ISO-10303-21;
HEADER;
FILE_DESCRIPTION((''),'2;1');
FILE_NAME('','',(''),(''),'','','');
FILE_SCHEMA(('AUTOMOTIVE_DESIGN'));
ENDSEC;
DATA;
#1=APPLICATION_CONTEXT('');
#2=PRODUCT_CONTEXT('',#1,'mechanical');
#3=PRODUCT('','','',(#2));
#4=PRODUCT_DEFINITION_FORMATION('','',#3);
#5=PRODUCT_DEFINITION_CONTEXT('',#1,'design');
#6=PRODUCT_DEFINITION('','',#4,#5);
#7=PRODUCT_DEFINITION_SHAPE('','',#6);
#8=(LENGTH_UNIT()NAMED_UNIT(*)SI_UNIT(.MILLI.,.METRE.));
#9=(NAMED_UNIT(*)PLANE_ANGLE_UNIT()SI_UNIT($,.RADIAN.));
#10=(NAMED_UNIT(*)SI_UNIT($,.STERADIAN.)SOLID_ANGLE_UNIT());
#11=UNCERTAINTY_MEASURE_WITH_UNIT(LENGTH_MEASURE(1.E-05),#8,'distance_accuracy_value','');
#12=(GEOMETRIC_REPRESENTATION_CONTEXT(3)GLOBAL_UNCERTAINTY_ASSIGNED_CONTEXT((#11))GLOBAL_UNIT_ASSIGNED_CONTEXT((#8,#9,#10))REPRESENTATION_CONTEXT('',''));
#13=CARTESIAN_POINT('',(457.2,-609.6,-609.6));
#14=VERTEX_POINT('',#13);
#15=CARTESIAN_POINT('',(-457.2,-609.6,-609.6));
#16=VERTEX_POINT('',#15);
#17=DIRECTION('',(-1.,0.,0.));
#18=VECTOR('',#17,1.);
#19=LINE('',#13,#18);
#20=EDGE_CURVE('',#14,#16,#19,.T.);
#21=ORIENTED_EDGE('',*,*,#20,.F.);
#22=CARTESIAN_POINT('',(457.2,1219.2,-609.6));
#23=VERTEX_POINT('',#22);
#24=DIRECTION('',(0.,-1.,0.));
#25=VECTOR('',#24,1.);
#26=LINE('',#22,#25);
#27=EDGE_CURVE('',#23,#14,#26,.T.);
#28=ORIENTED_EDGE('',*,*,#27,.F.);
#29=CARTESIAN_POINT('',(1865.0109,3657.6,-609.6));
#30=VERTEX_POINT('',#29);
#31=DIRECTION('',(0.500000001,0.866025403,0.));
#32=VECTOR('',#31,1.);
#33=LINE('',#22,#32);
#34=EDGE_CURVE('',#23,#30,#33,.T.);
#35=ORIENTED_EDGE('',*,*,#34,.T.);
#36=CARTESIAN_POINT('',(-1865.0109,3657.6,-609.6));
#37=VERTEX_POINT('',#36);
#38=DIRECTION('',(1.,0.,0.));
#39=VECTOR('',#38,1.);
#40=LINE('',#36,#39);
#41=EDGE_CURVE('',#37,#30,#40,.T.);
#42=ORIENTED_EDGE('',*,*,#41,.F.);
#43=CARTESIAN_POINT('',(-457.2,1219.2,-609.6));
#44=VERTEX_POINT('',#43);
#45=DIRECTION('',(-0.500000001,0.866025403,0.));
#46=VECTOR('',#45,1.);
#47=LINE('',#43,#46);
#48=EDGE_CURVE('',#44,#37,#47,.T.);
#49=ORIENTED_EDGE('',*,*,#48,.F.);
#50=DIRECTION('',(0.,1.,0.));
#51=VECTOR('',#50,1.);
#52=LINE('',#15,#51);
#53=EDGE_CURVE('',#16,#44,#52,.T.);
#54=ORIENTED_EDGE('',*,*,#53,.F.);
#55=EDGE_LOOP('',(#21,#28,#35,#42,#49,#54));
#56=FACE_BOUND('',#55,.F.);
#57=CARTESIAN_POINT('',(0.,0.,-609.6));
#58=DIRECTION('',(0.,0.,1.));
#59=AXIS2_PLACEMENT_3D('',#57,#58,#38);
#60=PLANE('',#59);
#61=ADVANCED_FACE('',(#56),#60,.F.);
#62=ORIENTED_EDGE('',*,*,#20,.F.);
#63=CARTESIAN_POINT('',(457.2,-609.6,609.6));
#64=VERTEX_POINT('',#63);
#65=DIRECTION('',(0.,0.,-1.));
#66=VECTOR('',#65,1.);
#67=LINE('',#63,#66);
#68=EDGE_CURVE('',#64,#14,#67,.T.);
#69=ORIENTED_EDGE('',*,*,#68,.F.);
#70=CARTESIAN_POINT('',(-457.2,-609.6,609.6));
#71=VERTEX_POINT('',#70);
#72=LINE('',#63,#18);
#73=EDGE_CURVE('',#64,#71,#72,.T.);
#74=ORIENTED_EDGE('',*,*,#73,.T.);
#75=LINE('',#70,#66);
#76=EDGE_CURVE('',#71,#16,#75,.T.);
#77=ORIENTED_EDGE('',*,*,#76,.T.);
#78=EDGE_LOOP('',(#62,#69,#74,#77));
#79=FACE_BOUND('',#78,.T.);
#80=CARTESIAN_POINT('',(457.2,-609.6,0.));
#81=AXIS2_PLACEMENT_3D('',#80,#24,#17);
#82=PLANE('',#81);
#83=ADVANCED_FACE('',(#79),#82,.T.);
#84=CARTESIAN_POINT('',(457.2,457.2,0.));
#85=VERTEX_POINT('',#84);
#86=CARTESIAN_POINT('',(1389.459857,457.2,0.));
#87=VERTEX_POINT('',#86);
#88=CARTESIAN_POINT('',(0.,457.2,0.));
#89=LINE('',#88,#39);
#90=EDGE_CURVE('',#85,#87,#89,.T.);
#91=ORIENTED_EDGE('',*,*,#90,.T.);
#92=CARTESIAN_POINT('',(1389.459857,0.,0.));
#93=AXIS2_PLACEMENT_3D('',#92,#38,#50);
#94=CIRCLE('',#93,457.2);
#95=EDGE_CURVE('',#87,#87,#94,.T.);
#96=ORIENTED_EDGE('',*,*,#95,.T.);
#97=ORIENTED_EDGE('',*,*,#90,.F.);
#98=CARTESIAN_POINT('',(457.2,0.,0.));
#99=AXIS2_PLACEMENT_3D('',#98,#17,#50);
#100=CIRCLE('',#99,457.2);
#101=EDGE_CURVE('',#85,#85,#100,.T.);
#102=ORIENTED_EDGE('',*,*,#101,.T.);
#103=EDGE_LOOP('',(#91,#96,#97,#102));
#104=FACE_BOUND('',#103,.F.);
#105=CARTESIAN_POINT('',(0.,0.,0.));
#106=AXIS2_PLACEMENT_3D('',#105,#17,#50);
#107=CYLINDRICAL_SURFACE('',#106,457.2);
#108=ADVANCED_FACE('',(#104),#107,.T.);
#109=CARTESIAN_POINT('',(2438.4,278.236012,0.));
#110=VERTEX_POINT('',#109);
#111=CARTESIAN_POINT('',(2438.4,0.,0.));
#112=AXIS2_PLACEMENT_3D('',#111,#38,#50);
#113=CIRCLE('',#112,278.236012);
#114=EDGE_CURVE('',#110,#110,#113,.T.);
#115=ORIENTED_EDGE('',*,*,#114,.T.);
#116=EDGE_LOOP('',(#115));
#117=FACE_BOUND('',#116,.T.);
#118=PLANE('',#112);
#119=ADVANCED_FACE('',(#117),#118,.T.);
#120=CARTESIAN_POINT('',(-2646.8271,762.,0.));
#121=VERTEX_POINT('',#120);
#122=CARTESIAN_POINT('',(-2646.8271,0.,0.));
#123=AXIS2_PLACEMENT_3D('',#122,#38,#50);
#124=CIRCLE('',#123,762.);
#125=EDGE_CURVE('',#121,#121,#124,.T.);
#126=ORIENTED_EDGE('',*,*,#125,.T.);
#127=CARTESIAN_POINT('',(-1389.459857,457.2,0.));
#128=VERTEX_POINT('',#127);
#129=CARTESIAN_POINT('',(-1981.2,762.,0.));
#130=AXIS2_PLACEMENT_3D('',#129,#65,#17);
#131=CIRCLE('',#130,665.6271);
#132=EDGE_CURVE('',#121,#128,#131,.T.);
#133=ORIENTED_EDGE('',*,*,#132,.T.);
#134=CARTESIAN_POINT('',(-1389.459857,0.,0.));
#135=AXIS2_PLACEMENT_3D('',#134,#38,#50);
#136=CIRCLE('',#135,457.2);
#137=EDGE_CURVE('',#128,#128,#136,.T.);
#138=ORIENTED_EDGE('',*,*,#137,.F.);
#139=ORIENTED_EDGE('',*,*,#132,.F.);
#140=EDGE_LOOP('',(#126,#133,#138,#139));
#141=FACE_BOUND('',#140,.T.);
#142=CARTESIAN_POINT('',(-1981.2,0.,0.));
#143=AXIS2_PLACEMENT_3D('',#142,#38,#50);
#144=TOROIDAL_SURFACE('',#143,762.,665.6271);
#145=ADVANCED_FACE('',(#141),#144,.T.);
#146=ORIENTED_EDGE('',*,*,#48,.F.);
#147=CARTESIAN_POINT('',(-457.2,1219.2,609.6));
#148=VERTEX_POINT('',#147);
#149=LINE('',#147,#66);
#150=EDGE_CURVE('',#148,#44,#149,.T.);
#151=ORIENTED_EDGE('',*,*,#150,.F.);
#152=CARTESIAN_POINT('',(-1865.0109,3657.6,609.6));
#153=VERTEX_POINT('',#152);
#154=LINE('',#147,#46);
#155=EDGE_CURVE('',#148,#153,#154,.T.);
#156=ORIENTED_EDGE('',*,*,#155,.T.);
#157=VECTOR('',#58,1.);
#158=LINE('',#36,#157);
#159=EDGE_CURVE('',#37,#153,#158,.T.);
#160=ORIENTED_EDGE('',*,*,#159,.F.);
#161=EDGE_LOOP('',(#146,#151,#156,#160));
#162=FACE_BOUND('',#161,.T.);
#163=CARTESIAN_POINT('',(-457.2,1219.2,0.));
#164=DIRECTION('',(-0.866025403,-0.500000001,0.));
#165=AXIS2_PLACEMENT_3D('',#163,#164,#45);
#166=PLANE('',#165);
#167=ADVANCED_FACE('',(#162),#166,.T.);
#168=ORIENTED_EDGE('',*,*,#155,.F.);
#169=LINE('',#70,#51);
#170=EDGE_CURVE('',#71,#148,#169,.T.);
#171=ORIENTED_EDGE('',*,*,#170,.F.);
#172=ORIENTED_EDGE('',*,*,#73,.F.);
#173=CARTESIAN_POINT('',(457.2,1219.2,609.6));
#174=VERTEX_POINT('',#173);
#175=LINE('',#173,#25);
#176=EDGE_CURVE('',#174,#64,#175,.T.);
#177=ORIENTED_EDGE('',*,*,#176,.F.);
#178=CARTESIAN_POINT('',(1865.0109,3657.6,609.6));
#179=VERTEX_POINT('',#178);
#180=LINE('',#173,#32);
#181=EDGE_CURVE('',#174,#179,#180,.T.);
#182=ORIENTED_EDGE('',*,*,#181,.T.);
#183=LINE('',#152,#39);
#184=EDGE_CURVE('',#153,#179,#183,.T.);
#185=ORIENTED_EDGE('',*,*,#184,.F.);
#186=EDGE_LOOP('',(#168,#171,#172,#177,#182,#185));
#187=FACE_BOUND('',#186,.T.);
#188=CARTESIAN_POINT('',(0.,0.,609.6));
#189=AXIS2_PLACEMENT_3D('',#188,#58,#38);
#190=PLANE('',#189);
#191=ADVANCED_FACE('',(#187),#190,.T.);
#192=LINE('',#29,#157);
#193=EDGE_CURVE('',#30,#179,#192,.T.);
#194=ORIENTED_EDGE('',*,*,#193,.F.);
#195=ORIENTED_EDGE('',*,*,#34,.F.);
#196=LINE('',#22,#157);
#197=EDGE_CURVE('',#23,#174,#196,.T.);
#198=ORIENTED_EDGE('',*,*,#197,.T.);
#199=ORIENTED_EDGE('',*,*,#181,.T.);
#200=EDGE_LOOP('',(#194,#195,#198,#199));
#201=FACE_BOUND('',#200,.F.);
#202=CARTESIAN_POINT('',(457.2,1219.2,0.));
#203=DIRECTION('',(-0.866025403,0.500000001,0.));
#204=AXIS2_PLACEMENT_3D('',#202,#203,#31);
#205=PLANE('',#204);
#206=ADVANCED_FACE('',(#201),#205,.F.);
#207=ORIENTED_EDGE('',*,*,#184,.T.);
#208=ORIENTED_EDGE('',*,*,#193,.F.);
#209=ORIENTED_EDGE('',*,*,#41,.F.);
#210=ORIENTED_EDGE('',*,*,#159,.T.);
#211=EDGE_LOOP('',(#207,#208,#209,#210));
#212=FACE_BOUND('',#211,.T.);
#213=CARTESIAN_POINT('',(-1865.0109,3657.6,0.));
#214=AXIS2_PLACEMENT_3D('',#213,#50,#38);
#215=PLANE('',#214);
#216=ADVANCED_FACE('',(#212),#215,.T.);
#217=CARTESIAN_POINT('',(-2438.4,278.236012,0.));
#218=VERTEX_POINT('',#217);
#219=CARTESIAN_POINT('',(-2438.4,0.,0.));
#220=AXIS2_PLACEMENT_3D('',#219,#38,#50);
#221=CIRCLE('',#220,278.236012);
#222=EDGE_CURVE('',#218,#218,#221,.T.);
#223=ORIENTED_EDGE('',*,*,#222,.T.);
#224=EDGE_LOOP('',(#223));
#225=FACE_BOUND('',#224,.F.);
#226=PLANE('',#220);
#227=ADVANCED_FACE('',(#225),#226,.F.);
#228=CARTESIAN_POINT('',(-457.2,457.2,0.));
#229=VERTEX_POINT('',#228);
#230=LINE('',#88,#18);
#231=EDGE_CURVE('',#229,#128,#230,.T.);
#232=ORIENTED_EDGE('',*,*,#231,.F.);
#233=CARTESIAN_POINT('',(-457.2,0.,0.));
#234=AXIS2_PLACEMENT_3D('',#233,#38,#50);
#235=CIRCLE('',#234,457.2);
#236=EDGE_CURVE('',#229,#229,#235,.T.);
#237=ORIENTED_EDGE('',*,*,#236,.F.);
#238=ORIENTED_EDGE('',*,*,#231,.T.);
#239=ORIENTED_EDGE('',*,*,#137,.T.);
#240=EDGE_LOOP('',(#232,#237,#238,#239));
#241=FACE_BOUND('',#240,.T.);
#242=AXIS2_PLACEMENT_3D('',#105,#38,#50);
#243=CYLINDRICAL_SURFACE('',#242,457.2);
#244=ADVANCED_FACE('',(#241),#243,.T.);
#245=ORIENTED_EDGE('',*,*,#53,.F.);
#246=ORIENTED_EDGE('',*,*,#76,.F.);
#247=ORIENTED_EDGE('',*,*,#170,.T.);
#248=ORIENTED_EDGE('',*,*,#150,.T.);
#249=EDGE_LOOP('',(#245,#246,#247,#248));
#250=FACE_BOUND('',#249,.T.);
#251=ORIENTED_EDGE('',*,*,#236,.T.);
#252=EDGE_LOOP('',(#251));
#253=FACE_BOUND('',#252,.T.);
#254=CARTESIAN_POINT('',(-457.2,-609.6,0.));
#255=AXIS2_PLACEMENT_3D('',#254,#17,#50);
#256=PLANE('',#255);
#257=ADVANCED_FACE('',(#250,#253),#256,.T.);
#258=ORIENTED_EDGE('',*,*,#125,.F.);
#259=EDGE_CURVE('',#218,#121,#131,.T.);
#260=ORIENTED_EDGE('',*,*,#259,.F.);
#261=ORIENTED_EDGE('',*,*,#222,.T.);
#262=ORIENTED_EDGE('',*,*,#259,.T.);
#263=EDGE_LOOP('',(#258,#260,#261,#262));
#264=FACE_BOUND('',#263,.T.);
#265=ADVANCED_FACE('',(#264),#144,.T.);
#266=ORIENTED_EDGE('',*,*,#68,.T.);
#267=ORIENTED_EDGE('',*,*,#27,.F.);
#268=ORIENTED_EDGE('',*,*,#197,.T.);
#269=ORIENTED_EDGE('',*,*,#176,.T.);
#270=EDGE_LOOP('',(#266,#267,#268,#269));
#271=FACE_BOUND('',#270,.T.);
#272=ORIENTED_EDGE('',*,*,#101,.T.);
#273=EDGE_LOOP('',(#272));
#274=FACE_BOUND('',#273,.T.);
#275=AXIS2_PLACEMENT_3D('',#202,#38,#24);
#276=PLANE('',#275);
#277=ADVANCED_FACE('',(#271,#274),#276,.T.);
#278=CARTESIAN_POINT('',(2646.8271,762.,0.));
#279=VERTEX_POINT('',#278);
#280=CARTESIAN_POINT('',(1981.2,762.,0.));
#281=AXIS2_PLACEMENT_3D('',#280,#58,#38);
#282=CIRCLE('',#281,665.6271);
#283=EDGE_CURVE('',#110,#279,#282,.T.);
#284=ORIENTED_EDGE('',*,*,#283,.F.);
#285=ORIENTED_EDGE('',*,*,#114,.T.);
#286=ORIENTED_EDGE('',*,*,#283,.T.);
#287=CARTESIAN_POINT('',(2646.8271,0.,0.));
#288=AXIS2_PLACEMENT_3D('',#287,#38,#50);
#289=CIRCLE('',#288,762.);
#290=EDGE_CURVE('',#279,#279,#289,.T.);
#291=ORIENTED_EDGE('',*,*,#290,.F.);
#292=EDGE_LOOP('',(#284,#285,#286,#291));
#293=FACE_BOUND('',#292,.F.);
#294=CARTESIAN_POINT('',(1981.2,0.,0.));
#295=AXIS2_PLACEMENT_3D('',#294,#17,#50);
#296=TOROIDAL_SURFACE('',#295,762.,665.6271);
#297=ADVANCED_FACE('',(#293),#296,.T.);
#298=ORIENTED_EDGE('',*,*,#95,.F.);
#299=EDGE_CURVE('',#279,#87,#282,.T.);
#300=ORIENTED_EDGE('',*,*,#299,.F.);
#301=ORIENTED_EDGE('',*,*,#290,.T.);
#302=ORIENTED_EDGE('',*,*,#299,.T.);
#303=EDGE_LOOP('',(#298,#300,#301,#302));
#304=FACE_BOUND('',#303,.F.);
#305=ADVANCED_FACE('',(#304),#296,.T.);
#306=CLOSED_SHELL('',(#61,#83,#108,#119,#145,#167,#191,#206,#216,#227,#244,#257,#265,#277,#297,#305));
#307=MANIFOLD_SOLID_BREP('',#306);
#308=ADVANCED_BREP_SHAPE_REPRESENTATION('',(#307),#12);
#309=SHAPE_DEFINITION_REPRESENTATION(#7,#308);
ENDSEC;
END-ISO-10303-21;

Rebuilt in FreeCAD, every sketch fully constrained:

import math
import FreeCAD as App
import Part
import Sketcher
Q = App.Units.Quantity


def add_polygon(sketch, points):
    """Adds a closed chain of lines whose ends are joined by coincident constraints."""
    first, n = sketch.GeometryCount, len(points)
    for a, b in zip(points, points[1:] + points[:1]):
        sketch.addGeometry(Part.LineSegment(App.Vector(*a, 0), App.Vector(*b, 0)), False)
    for i in range(n):
        sketch.addConstraint(Sketcher.Constraint("Coincident", first + i, 2, first + (i + 1) % n, 1))

doc = App.newDocument("Part")
body = doc.addObject("PartDesign::Body", "Body")

sketch1 = body.newObject("Sketcher::SketchObject", "Sketch")
sketch1.AttachmentSupport = (doc.getObject("XY_Plane"), [""])
sketch1.MapMode = "FlatFace"
add_polygon(sketch1, [(457, -610), (457, 1219), (1865, 3658), (-1865, 3658), (-457, 1219), (-457, -610)])
sketch1.addConstraint([
    Sketcher.Constraint("Vertical", 0),
    Sketcher.Constraint("Horizontal", 2),
    Sketcher.Constraint("Vertical", 4),
    Sketcher.Constraint("Horizontal", 5),
    Sketcher.Constraint("Symmetric", 0, 2, 3, 2, -2),
    Sketcher.Constraint("Equal", 1, 3),
    Sketcher.Constraint("DistanceX", 5, 1, 5, 2, Q("36 in")),
    Sketcher.Constraint("DistanceY", 0, 1, 0, 2, Q("72 in")),
    Sketcher.Constraint("DistanceY", -1, 1, 0, 2, Q("48 in")),
    Sketcher.Constraint("DistanceY", -1, 1, 1, 2, Q("144 in")),
    Sketcher.Constraint("Angle", 1, Q("60 deg")),
])
pad1 = body.newObject("PartDesign::Pad", "Pad")
pad1.Profile = sketch1
pad1.Length = Q("48 in")
pad1.Midplane = True

sketch2 = body.newObject("Sketcher::SketchObject", "Sketch001")
sketch2.AttachmentSupport = (doc.getObject("YZ_Plane"), [""])
sketch2.MapMode = "FlatFace"
sketch2.addGeometry(Part.Circle(App.Vector(0, 0, 0), App.Vector(0, 0, 1), 457), False)
sketch2.addConstraint([
    Sketcher.Constraint("Coincident", 0, 3, -1, 1),
    Sketcher.Constraint("Diameter", 0, Q("36 in")),
])
pad2 = body.newObject("PartDesign::Pad", "Pad001")
pad2.Profile = sketch2
pad2.Length = Q("192 in")
pad2.Midplane = True

sketch3 = body.newObject("Sketcher::SketchObject", "Sketch002")
sketch3.AttachmentSupport = (doc.getObject("XY_Plane"), [""])
sketch3.MapMode = "FlatFace"
sketch3.addGeometry([
    Part.LineSegment(App.Vector(2438, 457, 0), App.Vector(2438, 278, 0)),
    Part.ArcOfCircle(Part.Circle(App.Vector(1981, 762, 0), App.Vector(0, 0, 1), 666), math.radians(-47), math.radians(207)),
    Part.LineSegment(App.Vector(1389, 457, 0), App.Vector(2438, 457, 0)),
], False)
sketch3.addConstraint([
    Sketcher.Constraint("Coincident", 0, 2, 1, 1),
    Sketcher.Constraint("Coincident", 1, 2, 2, 1),
    Sketcher.Constraint("Coincident", 2, 2, 0, 1),
    Sketcher.Constraint("Vertical", 0),
    Sketcher.Constraint("Horizontal", 2),
    Sketcher.Constraint("DistanceX", -1, 1, 1, 3, Q("78 in")),
    Sketcher.Constraint("DistanceY", -1, 1, 1, 3, Q("30 in")),
    Sketcher.Constraint("DistanceX", -1, 1, 0, 2, Q("96 in")),
    Sketcher.Constraint("DistanceY", -1, 1, 2, 2, Q("18 in")),
    Sketcher.Constraint("Radius", 1, Q("26.2058 in")),
])
revolution = body.newObject("PartDesign::Revolution", "Revolution")
revolution.Profile = sketch3
revolution.ReferenceAxis = (sketch3, ["H_Axis"])
revolution.Angle = 360
doc.recompute()

mirrored = body.newObject("PartDesign::Mirrored", "Mirrored")
mirrored.Originals = [revolution]
mirrored.MirrorPlane = (doc.getObject("YZ_Plane"), [""])
body.Tip = mirrored

doc.recompute()
